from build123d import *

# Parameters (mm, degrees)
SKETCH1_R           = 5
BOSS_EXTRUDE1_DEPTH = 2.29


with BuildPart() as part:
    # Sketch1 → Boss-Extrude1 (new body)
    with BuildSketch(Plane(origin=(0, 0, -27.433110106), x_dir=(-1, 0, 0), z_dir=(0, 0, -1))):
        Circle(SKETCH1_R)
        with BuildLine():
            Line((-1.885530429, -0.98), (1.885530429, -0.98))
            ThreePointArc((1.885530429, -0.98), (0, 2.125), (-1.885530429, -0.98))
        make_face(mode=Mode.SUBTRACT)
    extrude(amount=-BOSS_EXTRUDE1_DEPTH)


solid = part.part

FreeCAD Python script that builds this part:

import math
import FreeCAD as App
import Part
import Sketcher
from FreeCAD import Vector

doc = App.newDocument("Part")
params = doc.addObject("Spreadsheet::Sheet", "Params")
for row, (alias, value) in enumerate([
    ("sketch1_diameter", "10 mm"),
    ("pad1_length", "2.29 mm"),
], start=1):
    params.set(f"A{row}", alias)
    params.set(f"B{row}", "=" + value)
    params.setAlias(f"B{row}", alias)

body = doc.addObject("PartDesign::Body", "Body")

# Sketch on XY plane
sketch1 = body.newObject("Sketcher::SketchObject", "Sketch")
sketch1.AttachmentSupport = (doc.getObject("XY_Plane"), [""])
sketch1.MapMode = "FlatFace"
sketch1.AttachmentOffset = App.Placement(Vector(0, 0, -27.43311), App.Rotation())
sketch1.addGeometry(Part.Circle(Vector(0, 0, 0), Vector(0, 0, 1), 5), False)
sketch1.addGeometry(Part.LineSegment(Vector(-1.9, -1, 0), Vector(1.9, -1, 0)), False)
sketch1.addGeometry(Part.ArcOfCircle(Part.Circle(Vector(0, 0, 0), Vector(0, 0, 1), 2.1), math.radians(-27), math.radians(207)), False)
sketch1.addConstraint(Sketcher.Constraint("Coincident", 1, 1, 2, 2))
sketch1.addConstraint(Sketcher.Constraint("Coincident", 2, 1, 1, 2))
sketch1.addConstraint(Sketcher.Constraint("Horizontal", 1))
sketch1.addConstraint(Sketcher.Constraint("Coincident", 0, 3, -1, 1))
sketch1.addConstraint(Sketcher.Constraint("Coincident", 2, 3, -1, 1))
sketch1.addConstraint(Sketcher.Constraint("Diameter", 0, 10.0))
sketch1.addConstraint(Sketcher.Constraint("Radius", 2, 2.125))
sketch1.addConstraint(Sketcher.Constraint("DistanceY", 1, 1, -1, 1, 0.98))
sketch1.setExpression("Constraints[5]", "Params.sketch1_diameter")
pad1 = body.newObject("PartDesign::Pad", "Pad")
pad1.Profile = sketch1
pad1.setExpression("Length", "Params.pad1_length")

doc.recompute()
